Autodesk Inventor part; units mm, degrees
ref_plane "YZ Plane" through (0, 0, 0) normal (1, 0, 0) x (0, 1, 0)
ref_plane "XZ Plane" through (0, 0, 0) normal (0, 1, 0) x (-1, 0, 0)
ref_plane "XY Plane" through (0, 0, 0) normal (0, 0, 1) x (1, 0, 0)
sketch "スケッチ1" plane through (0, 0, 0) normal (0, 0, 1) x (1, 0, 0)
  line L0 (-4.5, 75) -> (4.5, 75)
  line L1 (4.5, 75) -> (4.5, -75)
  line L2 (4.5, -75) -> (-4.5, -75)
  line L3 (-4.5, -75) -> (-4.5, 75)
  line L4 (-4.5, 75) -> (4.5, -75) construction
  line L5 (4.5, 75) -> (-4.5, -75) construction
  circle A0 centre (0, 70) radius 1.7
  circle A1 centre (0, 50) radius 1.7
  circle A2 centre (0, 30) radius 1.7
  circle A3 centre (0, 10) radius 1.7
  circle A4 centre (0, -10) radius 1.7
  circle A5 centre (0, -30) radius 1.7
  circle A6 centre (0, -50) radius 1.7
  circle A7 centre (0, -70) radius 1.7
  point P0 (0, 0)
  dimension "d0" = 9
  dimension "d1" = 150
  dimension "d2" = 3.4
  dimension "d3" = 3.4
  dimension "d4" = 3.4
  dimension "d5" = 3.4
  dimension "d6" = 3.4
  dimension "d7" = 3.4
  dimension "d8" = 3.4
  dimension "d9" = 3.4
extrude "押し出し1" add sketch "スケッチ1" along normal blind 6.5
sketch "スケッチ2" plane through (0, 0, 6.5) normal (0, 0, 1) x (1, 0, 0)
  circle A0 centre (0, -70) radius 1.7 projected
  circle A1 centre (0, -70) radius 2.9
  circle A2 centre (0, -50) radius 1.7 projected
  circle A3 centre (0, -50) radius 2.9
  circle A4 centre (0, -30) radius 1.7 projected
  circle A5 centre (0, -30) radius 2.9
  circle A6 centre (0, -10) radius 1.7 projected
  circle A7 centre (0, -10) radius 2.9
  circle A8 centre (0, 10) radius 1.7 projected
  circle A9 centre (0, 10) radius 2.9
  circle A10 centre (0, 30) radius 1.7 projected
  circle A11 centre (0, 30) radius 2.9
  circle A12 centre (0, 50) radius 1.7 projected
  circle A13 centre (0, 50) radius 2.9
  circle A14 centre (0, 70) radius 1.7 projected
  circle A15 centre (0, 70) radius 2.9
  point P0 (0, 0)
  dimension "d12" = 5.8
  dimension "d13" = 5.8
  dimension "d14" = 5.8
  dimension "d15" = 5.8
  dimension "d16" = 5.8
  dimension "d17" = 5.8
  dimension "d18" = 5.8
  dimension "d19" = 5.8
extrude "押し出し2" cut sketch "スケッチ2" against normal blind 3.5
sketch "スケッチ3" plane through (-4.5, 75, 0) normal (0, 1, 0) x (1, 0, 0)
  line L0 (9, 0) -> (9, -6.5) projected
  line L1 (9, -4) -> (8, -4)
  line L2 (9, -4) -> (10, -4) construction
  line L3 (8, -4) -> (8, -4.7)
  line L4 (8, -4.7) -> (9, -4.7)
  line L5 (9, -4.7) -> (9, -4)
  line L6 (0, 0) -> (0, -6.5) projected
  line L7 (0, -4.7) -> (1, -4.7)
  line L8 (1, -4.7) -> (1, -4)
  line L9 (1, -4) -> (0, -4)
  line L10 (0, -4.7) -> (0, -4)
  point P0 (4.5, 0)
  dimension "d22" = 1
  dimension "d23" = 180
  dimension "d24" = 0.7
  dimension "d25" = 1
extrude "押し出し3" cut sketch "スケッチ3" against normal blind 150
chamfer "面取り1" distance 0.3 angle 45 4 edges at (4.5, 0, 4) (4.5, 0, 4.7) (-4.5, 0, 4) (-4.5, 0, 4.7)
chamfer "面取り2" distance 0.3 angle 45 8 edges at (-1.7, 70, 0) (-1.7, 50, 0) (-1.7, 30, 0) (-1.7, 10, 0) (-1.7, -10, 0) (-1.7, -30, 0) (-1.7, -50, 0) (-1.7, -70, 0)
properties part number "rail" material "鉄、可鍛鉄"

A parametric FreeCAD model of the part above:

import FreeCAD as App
import Part
import Sketcher
from FreeCAD import Vector


def edges_at(feature, points):
    """Names of the edges that pass closest to the given points."""
    edges = feature.Shape.Edges
    near = lambda p: min(range(len(edges)), key=lambda i: edges[i].distToShape(Part.Vertex(*p))[0])
    return sorted({f"Edge{near(p) + 1}" for p in points})

doc = App.newDocument("Part")
body = doc.addObject("PartDesign::Body", "Body")

sketch1 = doc.addObject("Sketcher::SketchObject", "Sketch")
body.addObject(sketch1)
sketch1.AttachmentSupport = (doc.XY_Plane, [""])
sketch1.MapMode = "FlatFace"
sketch1.addGeometry(Part.LineSegment(Vector(4.5, 75, 0), Vector(-4.5, 75, 0)), False)
sketch1.addGeometry(Part.LineSegment(Vector(-4.5, 75, 0), Vector(-4.5, -75, 0)), False)
sketch1.addGeometry(Part.LineSegment(Vector(-4.5, -75, 0), Vector(4.5, -75, 0)), False)
sketch1.addGeometry(Part.LineSegment(Vector(4.5, -75, 0), Vector(4.5, 75, 0)), False)
sketch1.addGeometry(Part.Circle(Vector(0, -70, 0), Vector(0, 0, 1), 1.7), False)
sketch1.addGeometry(Part.Circle(Vector(0, -50, 0), Vector(0, 0, 1), 1.7), False)
sketch1.addGeometry(Part.Circle(Vector(0, -30, 0), Vector(0, 0, 1), 1.7), False)
sketch1.addGeometry(Part.Circle(Vector(0, -10, 0), Vector(0, 0, 1), 1.7), False)
sketch1.addGeometry(Part.Circle(Vector(0, 10, 0), Vector(0, 0, 1), 1.7), False)
sketch1.addGeometry(Part.Circle(Vector(0, 30, 0), Vector(0, 0, 1), 1.7), False)
sketch1.addGeometry(Part.Circle(Vector(0, 50, 0), Vector(0, 0, 1), 1.7), False)
sketch1.addGeometry(Part.Circle(Vector(0, 70, 0), Vector(0, 0, 1), 1.7), False)
sketch1.addConstraint(Sketcher.Constraint("Coincident", 0, 2, 1, 1))
sketch1.addConstraint(Sketcher.Constraint("Coincident", 1, 2, 2, 1))
sketch1.addConstraint(Sketcher.Constraint("Coincident", 2, 2, 3, 1))
sketch1.addConstraint(Sketcher.Constraint("Coincident", 3, 2, 0, 1))
sketch1.addConstraint(Sketcher.Constraint("Horizontal", 0))
sketch1.addConstraint(Sketcher.Constraint("Vertical", 1))
sketch1.addConstraint(Sketcher.Constraint("Horizontal", 2))
sketch1.addConstraint(Sketcher.Constraint("Vertical", 3))
sketch1.addConstraint(Sketcher.Constraint("Equal", 4, 5))
sketch1.addConstraint(Sketcher.Constraint("Equal", 5, 6))
sketch1.addConstraint(Sketcher.Constraint("Equal", 6, 7))
sketch1.addConstraint(Sketcher.Constraint("Equal", 7, 8))
sketch1.addConstraint(Sketcher.Constraint("Equal", 8, 9))
sketch1.addConstraint(Sketcher.Constraint("Equal", 9, 10))
sketch1.addConstraint(Sketcher.Constraint("Equal", 10, 11))
sketch1.addConstraint(Sketcher.Constraint("Symmetric", 7, 3, 8, 3, -1, 1))
sketch1.addConstraint(Sketcher.Constraint("Symmetric", 6, 3, 9, 3, -1, 1))
sketch1.addConstraint(Sketcher.Constraint("Symmetric", 5, 3, 10, 3, -1, 1))
sketch1.addConstraint(Sketcher.Constraint("Symmetric", 4, 3, 11, 3, -1, 1))
sketch1.addConstraint(Sketcher.Constraint("Symmetric", 0, 2, 2, 2, -1, 1))
sketch1.addConstraint(Sketcher.Constraint("PointOnObject", 4, 3, -2))
sketch1.addConstraint(Sketcher.Constraint("PointOnObject", 5, 3, -2))
sketch1.addConstraint(Sketcher.Constraint("PointOnObject", 6, 3, -2))
sketch1.addConstraint(Sketcher.Constraint("PointOnObject", 7, 3, -2))
sketch1.addConstraint(Sketcher.Constraint("Diameter", 4, 3.4))
sketch1.addConstraint(Sketcher.Constraint("DistanceX", 0, 2, 0, 1, 9.0))
sketch1.addConstraint(Sketcher.Constraint("DistanceY", 1, 2, 1, 1, 150.0))
sketch1.addConstraint(Sketcher.Constraint("DistanceY", 4, 3, -1, 1, 70.0))
sketch1.addConstraint(Sketcher.Constraint("DistanceY", 5, 3, -1, 1, 50.0))
sketch1.addConstraint(Sketcher.Constraint("DistanceY", 6, 3, -1, 1, 30.0))
sketch1.addConstraint(Sketcher.Constraint("DistanceY", 7, 3, -1, 1, 10.0))
pad1 = doc.addObject("PartDesign::Pad", "Pad")
body.addObject(pad1)
pad1.Profile = sketch1
pad1.Length = 6.5

sketch2 = doc.addObject("Sketcher::SketchObject", "Sketch001")
body.addObject(sketch2)
sketch2.AttachmentSupport = (doc.XY_Plane, [""])
sketch2.MapMode = "FlatFace"
sketch2.AttachmentOffset = App.Placement(Vector(0, 0, 6.5), App.Rotation())
sketch2.addGeometry(Part.Circle(Vector(0, -70, 0), Vector(0, 0, 1), 2.9), False)
sketch2.addGeometry(Part.Circle(Vector(0, -70, 0), Vector(0, 0, 1), 1.7), False)
sketch2.addGeometry(Part.Circle(Vector(0, -50, 0), Vector(0, 0, 1), 2.9), False)
sketch2.addGeometry(Part.Circle(Vector(0, -50, 0), Vector(0, 0, 1), 1.7), False)
sketch2.addGeometry(Part.Circle(Vector(0, -30, 0), Vector(0, 0, 1), 2.9), False)
sketch2.addGeometry(Part.Circle(Vector(0, -30, 0), Vector(0, 0, 1), 1.7), False)
sketch2.addGeometry(Part.Circle(Vector(0, -10, 0), Vector(0, 0, 1), 2.9), False)
sketch2.addGeometry(Part.Circle(Vector(0, -10, 0), Vector(0, 0, 1), 1.7), False)
sketch2.addGeometry(Part.Circle(Vector(0, 10, 0), Vector(0, 0, 1), 2.9), False)
sketch2.addGeometry(Part.Circle(Vector(0, 10, 0), Vector(0, 0, 1), 1.7), False)
sketch2.addGeometry(Part.Circle(Vector(0, 30, 0), Vector(0, 0, 1), 2.9), False)
sketch2.addGeometry(Part.Circle(Vector(0, 30, 0), Vector(0, 0, 1), 1.7), False)
sketch2.addGeometry(Part.Circle(Vector(0, 50, 0), Vector(0, 0, 1), 2.9), False)
sketch2.addGeometry(Part.Circle(Vector(0, 50, 0), Vector(0, 0, 1), 1.7), False)
sketch2.addGeometry(Part.Circle(Vector(0, 70, 0), Vector(0, 0, 1), 2.9), False)
sketch2.addGeometry(Part.Circle(Vector(0, 70, 0), Vector(0, 0, 1), 1.7), False)
sketch2.addConstraint(Sketcher.Constraint("Coincident", 1, 3, 0, 3))
sketch2.addConstraint(Sketcher.Constraint("Coincident", 3, 3, 2, 3))
sketch2.addConstraint(Sketcher.Constraint("Coincident", 5, 3, 4, 3))
sketch2.addConstraint(Sketcher.Constraint("Coincident", 7, 3, 6, 3))
sketch2.addConstraint(Sketcher.Constraint("Coincident", 9, 3, 8, 3))
sketch2.addConstraint(Sketcher.Constraint("Coincident", 11, 3, 10, 3))
sketch2.addConstraint(Sketcher.Constraint("Coincident", 13, 3, 12, 3))
sketch2.addConstraint(Sketcher.Constraint("Coincident", 15, 3, 14, 3))
sketch2.addConstraint(Sketcher.Constraint("Equal", 0, 2))
sketch2.addConstraint(Sketcher.Constraint("Equal", 1, 3))
sketch2.addConstraint(Sketcher.Constraint("Equal", 2, 4))
sketch2.addConstraint(Sketcher.Constraint("Equal", 3, 5))
sketch2.addConstraint(Sketcher.Constraint("Equal", 4, 6))
sketch2.addConstraint(Sketcher.Constraint("Equal", 5, 7))
sketch2.addConstraint(Sketcher.Constraint("Equal", 6, 8))
sketch2.addConstraint(Sketcher.Constraint("Equal", 7, 9))
sketch2.addConstraint(Sketcher.Constraint("Equal", 8, 10))
sketch2.addConstraint(Sketcher.Constraint("Equal", 9, 11))
sketch2.addConstraint(Sketcher.Constraint("Equal", 10, 12))
sketch2.addConstraint(Sketcher.Constraint("Equal", 11, 13))
sketch2.addConstraint(Sketcher.Constraint("Equal", 12, 14))
sketch2.addConstraint(Sketcher.Constraint("Equal", 13, 15))
sketch2.addConstraint(Sketcher.Constraint("Symmetric", 6, 3, 8, 3, -1, 1))
sketch2.addConstraint(Sketcher.Constraint("Symmetric", 4, 3, 10, 3, -1, 1))
sketch2.addConstraint(Sketcher.Constraint("Symmetric", 2, 3, 12, 3, -1, 1))
sketch2.addConstraint(Sketcher.Constraint("Symmetric", 0, 3, 14, 3, -1, 1))
sketch2.addConstraint(Sketcher.Constraint("PointOnObject", 0, 3, -2))
sketch2.addConstraint(Sketcher.Constraint("PointOnObject", 2, 3, -2))
sketch2.addConstraint(Sketcher.Constraint("PointOnObject", 4, 3, -2))
sketch2.addConstraint(Sketcher.Constraint("PointOnObject", 6, 3, -2))
sketch2.addConstraint(Sketcher.Constraint("Diameter", 0, 5.8))
sketch2.addConstraint(Sketcher.Constraint("Diameter", 1, 3.4))
sketch2.addConstraint(Sketcher.Constraint("DistanceY", 0, 3, -1, 1, 70.0))
sketch2.addConstraint(Sketcher.Constraint("DistanceY", 2, 3, -1, 1, 50.0))
sketch2.addConstraint(Sketcher.Constraint("DistanceY", 4, 3, -1, 1, 30.0))
sketch2.addConstraint(Sketcher.Constraint("DistanceY", 6, 3, -1, 1, 10.0))
pocket1 = doc.addObject("PartDesign::Pocket", "Pocket")
body.addObject(pocket1)
pocket1.Profile = sketch2
pocket1.Length = 3.5

sketch3 = doc.addObject("Sketcher::SketchObject", "Sketch002")
body.addObject(sketch3)
sketch3.AttachmentSupport = (doc.XZ_Plane, [""])
sketch3.MapMode = "FlatFace"
sketch3.AttachmentOffset = App.Placement(Vector(0, 0, -75), App.Rotation())
sketch3.addGeometry(Part.LineSegment(Vector(4.5, 4.7, 0), Vector(4.5, 4, 0)), False)
sketch3.addGeometry(Part.LineSegment(Vector(4.5, 4, 0), Vector(3.5, 4, 0)), False)
sketch3.addGeometry(Part.LineSegment(Vector(3.5, 4, 0), Vector(3.5, 4.7, 0)), False)
sketch3.addGeometry(Part.LineSegment(Vector(3.5, 4.7, 0), Vector(4.5, 4.7, 0)), False)
sketch3.addGeometry(Part.LineSegment(Vector(-3.5, 4, 0), Vector(-4.5, 4, 0)), False)
sketch3.addGeometry(Part.LineSegment(Vector(-4.5, 4, 0), Vector(-4.5, 4.7, 0)), False)
sketch3.addGeometry(Part.LineSegment(Vector(-4.5, 4.7, 0), Vector(-3.5, 4.7, 0)), False)
sketch3.addGeometry(Part.LineSegment(Vector(-3.5, 4.7, 0), Vector(-3.5, 4, 0)), False)
sketch3.addConstraint(Sketcher.Constraint("Coincident", 0, 2, 1, 1))
sketch3.addConstraint(Sketcher.Constraint("Coincident", 1, 2, 2, 1))
sketch3.addConstraint(Sketcher.Constraint("Coincident", 2, 2, 3, 1))
sketch3.addConstraint(Sketcher.Constraint("Coincident", 3, 2, 0, 1))
sketch3.addConstraint(Sketcher.Constraint("Coincident", 4, 2, 5, 1))
sketch3.addConstraint(Sketcher.Constraint("Coincident", 5, 2, 6, 1))
sketch3.addConstraint(Sketcher.Constraint("Coincident", 6, 2, 7, 1))
sketch3.addConstraint(Sketcher.Constraint("Coincident", 7, 2, 4, 1))
sketch3.addConstraint(Sketcher.Constraint("Vertical", 0))
sketch3.addConstraint(Sketcher.Constraint("Horizontal", 1))
sketch3.addConstraint(Sketcher.Constraint("Vertical", 2))
sketch3.addConstraint(Sketcher.Constraint("Horizontal", 3))
sketch3.addConstraint(Sketcher.Constraint("Horizontal", 4))
sketch3.addConstraint(Sketcher.Constraint("Vertical", 5))
sketch3.addConstraint(Sketcher.Constraint("Horizontal", 6))
sketch3.addConstraint(Sketcher.Constraint("Vertical", 7))
sketch3.addConstraint(Sketcher.Constraint("Symmetric", 0, 2, 4, 2, -2))
sketch3.addConstraint(Sketcher.Constraint("Symmetric", 2, 2, 6, 2, -2))
sketch3.addConstraint(Sketcher.Constraint("DistanceX", 1, 2, 1, 1, 1.0))
sketch3.addConstraint(Sketcher.Constraint("DistanceY", 0, 2, 0, 1, 0.7))
sketch3.addConstraint(Sketcher.Constraint("DistanceY", -1, 1, 0, 2, 4.0))
sketch3.addConstraint(Sketcher.Constraint("DistanceX", 4, 2, 1, 2, 8.0))
pocket2 = doc.addObject("PartDesign::Pocket", "Pocket001")
body.addObject(pocket2)
pocket2.Profile = sketch3
pocket2.Length = 150
pocket2.Reversed = True
doc.recompute()

chamfer = doc.addObject("PartDesign::Chamfer", "Chamfer")
body.addObject(chamfer)
chamfer.Base = (pocket2, edges_at(pocket2, [
    (4.5, 0, 4),
    (4.5, 0, 4.7),
    (-4.5, 0, 4),
    (-4.5, 0, 4.7),
]))
chamfer.Size = 0.3
doc.recompute()

chamfer2 = doc.addObject("PartDesign::Chamfer", "Chamfer001")
body.addObject(chamfer2)
chamfer2.Base = (chamfer, edges_at(chamfer, [
    (-1.7, 70, 0),
    (-1.7, 50, 0),
    (-1.7, 30, 0),
    (-1.7, 10, 0),
    (-1.7, -10, 0),
    (-1.7, -30, 0),
    (-1.7, -50, 0),
    (-1.7, -70, 0),
]))
chamfer2.Size = 0.3

doc.recompute()
